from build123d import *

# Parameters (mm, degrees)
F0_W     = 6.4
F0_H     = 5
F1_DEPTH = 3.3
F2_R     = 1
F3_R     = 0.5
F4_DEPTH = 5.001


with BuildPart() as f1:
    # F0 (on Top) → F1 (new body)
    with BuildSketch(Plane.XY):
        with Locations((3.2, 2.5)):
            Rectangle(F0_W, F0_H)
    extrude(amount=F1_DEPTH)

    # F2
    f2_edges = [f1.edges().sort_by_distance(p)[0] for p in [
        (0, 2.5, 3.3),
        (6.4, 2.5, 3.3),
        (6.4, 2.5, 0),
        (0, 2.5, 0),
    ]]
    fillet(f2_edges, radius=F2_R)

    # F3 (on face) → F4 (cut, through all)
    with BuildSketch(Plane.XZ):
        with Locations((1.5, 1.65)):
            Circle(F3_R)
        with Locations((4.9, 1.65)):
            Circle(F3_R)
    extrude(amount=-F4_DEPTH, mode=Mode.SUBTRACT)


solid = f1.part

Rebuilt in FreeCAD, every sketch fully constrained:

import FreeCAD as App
import Part
import Sketcher

V = App.Vector


def edges_at(feature, points):
    """Names of the edges that pass closest to the given points."""
    edges = feature.Shape.Edges
    near = lambda p: min(range(len(edges)), key=lambda i: edges[i].distToShape(Part.Vertex(*p))[0])
    return sorted({f"Edge{near(p) + 1}" for p in points})


def add_polygon(sketch, points):
    """Adds a closed chain of lines whose ends are joined by coincident constraints."""
    first, n = sketch.GeometryCount, len(points)
    for a, b in zip(points, points[1:] + points[:1]):
        sketch.addGeometry(Part.LineSegment(App.Vector(*a, 0), App.Vector(*b, 0)), False)
    for i in range(n):
        sketch.addConstraint(Sketcher.Constraint("Coincident", first + i, 2, first + (i + 1) % n, 1))

doc = App.newDocument("Part")
body = doc.addObject("PartDesign::Body", "Body")

# Sketch on XY plane
sketch1 = body.newObject("Sketcher::SketchObject", "Sketch")
sketch1.AttachmentSupport = (doc.getObject("XY_Plane"), [""])
sketch1.MapMode = "FlatFace"
add_polygon(sketch1, [(0, 5), (0, 0), (6, 0), (6, 5)])  # lines 0-3
sketch1.addConstraint(Sketcher.Constraint("Vertical", 0))
sketch1.addConstraint(Sketcher.Constraint("Horizontal", 1))
sketch1.addConstraint(Sketcher.Constraint("Vertical", 2))
sketch1.addConstraint(Sketcher.Constraint("Horizontal", 3))
sketch1.addConstraint(Sketcher.Constraint("Coincident", 0, 2, -1, 1))
sketch1.addConstraint(Sketcher.Constraint("DistanceY", 0, 2, 0, 1, 5.0))
sketch1.addConstraint(Sketcher.Constraint("DistanceX", 1, 1, 1, 2, 6.4))
pad1 = body.newObject("PartDesign::Pad", "Pad")
pad1.Profile = sketch1
pad1.Length = 3.3
doc.recompute()

fillet = body.newObject("PartDesign::Fillet", "Fillet")
fillet.Base = (pad1, edges_at(pad1, [
    (0, 2.5, 3.3),
    (6.4, 2.5, 3.3),
    (6.4, 2.5, 0),
    (0, 2.5, 0),
]))
fillet.Radius = 1

# Sketch on XZ plane
sketch2 = body.newObject("Sketcher::SketchObject", "Sketch001")
sketch2.AttachmentSupport = (doc.getObject("XZ_Plane"), [""])
sketch2.MapMode = "FlatFace"
sketch2.addGeometry(Part.Circle(V(1.5, 1.6, 0), V(0, 0, 1), 0.5), False)
sketch2.addGeometry(Part.Circle(V(4.9, 1.6, 0), V(0, 0, 1), 0.5), False)
sketch2.addConstraint(Sketcher.Constraint("Equal", 0, 1))
sketch2.addConstraint(Sketcher.Constraint("Horizontal", 0, 3, 1, 3))
sketch2.addConstraint(Sketcher.Constraint("Diameter", 0, 1.0))
sketch2.addConstraint(Sketcher.Constraint("DistanceX", -1, 1, 0, 3, 1.5))
sketch2.addConstraint(Sketcher.Constraint("DistanceX", -1, 1, 1, 3, 4.9))
sketch2.addConstraint(Sketcher.Constraint("DistanceY", -1, 1, 0, 3, 1.65))
pocket1 = body.newObject("PartDesign::Pocket", "Pocket")
pocket1.Profile = sketch2
pocket1.Type = "ThroughAll"

doc.recompute()
